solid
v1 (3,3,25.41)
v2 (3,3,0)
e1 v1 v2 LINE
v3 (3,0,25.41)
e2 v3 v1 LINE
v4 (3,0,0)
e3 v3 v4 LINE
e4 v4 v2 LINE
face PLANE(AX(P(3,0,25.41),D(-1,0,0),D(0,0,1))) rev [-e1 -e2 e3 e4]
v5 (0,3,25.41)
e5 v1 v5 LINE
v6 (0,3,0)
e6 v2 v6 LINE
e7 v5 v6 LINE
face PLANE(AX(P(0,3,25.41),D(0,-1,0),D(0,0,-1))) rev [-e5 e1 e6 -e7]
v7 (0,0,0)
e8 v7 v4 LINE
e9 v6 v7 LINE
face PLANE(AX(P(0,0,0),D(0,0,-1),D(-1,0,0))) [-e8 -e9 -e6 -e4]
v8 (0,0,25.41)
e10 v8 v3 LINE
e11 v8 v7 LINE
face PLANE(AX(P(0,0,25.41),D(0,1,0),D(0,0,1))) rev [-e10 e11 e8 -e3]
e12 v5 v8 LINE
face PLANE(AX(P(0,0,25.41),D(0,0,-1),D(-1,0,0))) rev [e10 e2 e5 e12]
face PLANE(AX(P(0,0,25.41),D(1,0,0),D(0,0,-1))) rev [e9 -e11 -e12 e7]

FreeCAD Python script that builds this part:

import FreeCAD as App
import Part
import Sketcher

doc = App.newDocument("Part")
body = doc.addObject("PartDesign::Body", "Body")

# Sketch on XY plane
sketch1 = body.newObject("Sketcher::SketchObject", "Sketch")
sketch1.AttachmentSupport = (doc.getObject("XY_Plane"), [""])
sketch1.MapMode = "FlatFace"
sketch1.addGeometry([
    Part.LineSegment(App.Vector(0, 3, 0), App.Vector(0, 0, 0)),
    Part.LineSegment(App.Vector(0, 0, 0), App.Vector(3, 0, 0)),
    Part.LineSegment(App.Vector(3, 0, 0), App.Vector(3, 3, 0)),
    Part.LineSegment(App.Vector(3, 3, 0), App.Vector(0, 3, 0)),
], False)
sketch1.addConstraint([
    Sketcher.Constraint("Coincident", 0, 2, 1, 1),
    Sketcher.Constraint("Coincident", 1, 2, 2, 1),
    Sketcher.Constraint("Coincident", 2, 2, 3, 1),
    Sketcher.Constraint("Coincident", 3, 2, 0, 1),
    Sketcher.Constraint("Vertical", 0),
    Sketcher.Constraint("Horizontal", 1),
    Sketcher.Constraint("Vertical", 2),
    Sketcher.Constraint("Horizontal", 3),
    Sketcher.Constraint("Coincident", 0, 2, -1, 1),
    Sketcher.Constraint("Equal", 3, 0),
    Sketcher.Constraint("DistanceX", 1, 1, 1, 2, 3.0),
])
pad1 = body.newObject("PartDesign::Pad", "Pad")
pad1.Profile = sketch1
pad1.Length = 25.41

doc.recompute()
